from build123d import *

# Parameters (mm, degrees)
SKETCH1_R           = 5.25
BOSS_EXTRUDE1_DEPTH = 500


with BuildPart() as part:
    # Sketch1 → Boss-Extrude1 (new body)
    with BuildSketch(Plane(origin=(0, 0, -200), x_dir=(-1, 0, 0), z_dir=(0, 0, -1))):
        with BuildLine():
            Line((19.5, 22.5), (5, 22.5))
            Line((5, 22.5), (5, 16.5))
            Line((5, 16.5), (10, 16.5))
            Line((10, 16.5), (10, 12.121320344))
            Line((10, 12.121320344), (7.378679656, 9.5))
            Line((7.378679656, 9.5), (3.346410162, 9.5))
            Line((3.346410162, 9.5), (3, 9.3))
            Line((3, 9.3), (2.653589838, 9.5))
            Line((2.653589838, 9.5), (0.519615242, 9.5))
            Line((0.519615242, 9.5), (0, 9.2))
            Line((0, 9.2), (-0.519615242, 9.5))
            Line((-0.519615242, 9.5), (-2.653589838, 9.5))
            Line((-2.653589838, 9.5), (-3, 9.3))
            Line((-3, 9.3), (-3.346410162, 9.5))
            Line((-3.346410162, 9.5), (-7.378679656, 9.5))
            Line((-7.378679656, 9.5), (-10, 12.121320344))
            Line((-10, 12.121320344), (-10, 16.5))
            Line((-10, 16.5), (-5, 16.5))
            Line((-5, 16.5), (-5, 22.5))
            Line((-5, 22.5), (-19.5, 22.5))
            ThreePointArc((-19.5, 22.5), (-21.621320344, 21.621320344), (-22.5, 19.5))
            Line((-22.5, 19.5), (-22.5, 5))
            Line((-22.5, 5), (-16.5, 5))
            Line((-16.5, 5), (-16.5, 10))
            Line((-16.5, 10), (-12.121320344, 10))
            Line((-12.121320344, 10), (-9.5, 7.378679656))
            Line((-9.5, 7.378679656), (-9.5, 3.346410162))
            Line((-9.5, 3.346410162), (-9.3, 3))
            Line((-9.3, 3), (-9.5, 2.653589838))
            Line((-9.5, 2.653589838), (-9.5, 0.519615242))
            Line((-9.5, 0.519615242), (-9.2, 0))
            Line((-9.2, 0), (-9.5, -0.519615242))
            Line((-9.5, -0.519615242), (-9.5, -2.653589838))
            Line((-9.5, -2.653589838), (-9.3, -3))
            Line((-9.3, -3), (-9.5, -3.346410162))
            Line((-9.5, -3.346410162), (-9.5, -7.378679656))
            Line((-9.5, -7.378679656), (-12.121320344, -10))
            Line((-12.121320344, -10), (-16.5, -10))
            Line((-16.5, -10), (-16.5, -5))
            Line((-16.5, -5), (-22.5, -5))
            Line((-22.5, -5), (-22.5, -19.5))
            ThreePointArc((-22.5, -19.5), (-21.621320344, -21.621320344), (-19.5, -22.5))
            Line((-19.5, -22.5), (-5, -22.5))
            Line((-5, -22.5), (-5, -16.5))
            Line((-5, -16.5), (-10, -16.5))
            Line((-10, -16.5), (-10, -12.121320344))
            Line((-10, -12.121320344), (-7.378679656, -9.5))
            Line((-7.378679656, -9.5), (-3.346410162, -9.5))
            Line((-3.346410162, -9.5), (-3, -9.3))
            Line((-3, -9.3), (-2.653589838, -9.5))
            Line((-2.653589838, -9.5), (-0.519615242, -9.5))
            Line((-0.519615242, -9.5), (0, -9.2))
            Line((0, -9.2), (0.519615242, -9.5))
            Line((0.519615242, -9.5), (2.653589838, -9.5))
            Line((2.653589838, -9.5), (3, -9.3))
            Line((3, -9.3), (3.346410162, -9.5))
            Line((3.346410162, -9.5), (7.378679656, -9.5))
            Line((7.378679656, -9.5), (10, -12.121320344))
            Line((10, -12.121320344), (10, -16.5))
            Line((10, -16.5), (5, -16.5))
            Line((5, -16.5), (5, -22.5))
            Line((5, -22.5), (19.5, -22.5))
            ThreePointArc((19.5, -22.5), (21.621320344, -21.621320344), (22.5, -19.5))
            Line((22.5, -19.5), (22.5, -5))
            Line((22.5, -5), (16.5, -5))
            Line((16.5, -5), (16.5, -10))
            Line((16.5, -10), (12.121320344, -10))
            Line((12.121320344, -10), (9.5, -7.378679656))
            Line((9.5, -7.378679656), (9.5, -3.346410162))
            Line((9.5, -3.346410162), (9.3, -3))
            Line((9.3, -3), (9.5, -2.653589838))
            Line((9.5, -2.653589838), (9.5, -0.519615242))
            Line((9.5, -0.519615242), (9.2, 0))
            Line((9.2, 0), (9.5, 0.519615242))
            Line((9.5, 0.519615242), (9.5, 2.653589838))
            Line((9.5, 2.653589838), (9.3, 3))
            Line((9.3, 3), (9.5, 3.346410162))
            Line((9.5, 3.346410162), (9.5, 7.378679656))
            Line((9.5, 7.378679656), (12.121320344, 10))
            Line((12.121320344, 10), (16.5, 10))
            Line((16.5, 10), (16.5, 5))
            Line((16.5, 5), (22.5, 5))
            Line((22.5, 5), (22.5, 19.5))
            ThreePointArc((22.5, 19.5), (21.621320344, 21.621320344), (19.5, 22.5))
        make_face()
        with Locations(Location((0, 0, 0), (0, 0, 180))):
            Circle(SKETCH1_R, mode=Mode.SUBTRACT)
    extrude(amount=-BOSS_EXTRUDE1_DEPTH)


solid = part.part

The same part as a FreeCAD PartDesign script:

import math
import FreeCAD as App
import Part
import Sketcher

V = App.Vector
Q = App.Units.Quantity

doc = App.newDocument("Part")
params = doc.addObject("Spreadsheet::Sheet", "Params")
for row, (alias, value) in enumerate([
    ("sketch1_radius", "3 mm"),
    ("sketch1_diameter", "10.5 mm"),
    ("sketch1_width", "5 mm"),
    ("sketch1_width2", "6 mm"),
    ("sketch1_width3", "14.5 mm"),
    ("pad1_length", "500 mm"),
], start=1):
    params.set(f"A{row}", alias)
    params.set(f"B{row}", "=" + value)
    params.setAlias(f"B{row}", alias)

body = doc.addObject("PartDesign::Body", "Body")

sketch1 = body.newObject("Sketcher::SketchObject", "Sketch")
sketch1.AttachmentSupport = (doc.getObject("XY_Plane"), [""])
sketch1.MapMode = "FlatFace"
sketch1.AttachmentOffset = App.Placement(V(0, 0, -200), App.Rotation())
sketch1.addGeometry(Part.LineSegment(V(-19.5, 22.5, 0), V(-5, 22.5, 0)), False)
sketch1.addGeometry(Part.LineSegment(V(-5, 22.5, 0), V(-5, 16.5, 0)), False)
sketch1.addGeometry(Part.LineSegment(V(-5, 16.5, 0), V(-10, 16.5, 0)), False)
sketch1.addGeometry(Part.LineSegment(V(-10, 16.5, 0), V(-10, 12.12, 0)), False)
sketch1.addGeometry(Part.LineSegment(V(-10, 12.12, 0), V(-7.38, 9.5, 0)), False)
sketch1.addGeometry(Part.LineSegment(V(-7.38, 9.5, 0), V(-3.35, 9.5, 0)), False)
sketch1.addGeometry(Part.LineSegment(V(-3.35, 9.5, 0), V(-3, 9.3, 0)), False)
sketch1.addGeometry(Part.LineSegment(V(-3, 9.3, 0), V(-2.65, 9.5, 0)), False)
sketch1.addGeometry(Part.LineSegment(V(-2.65, 9.5, 0), V(-0.52, 9.5, 0)), False)
sketch1.addGeometry(Part.LineSegment(V(-0.52, 9.5, 0), V(0, 9.2, 0)), False)
sketch1.addGeometry(Part.LineSegment(V(0, 9.2, 0), V(0.52, 9.5, 0)), False)
sketch1.addGeometry(Part.LineSegment(V(0.52, 9.5, 0), V(2.65, 9.5, 0)), False)
sketch1.addGeometry(Part.LineSegment(V(2.65, 9.5, 0), V(3, 9.3, 0)), False)
sketch1.addGeometry(Part.LineSegment(V(3, 9.3, 0), V(3.35, 9.5, 0)), False)
sketch1.addGeometry(Part.LineSegment(V(3.35, 9.5, 0), V(7.38, 9.5, 0)), False)
sketch1.addGeometry(Part.LineSegment(V(7.38, 9.5, 0), V(10, 12.12, 0)), False)
sketch1.addGeometry(Part.LineSegment(V(10, 12.12, 0), V(10, 16.5, 0)), False)
sketch1.addGeometry(Part.LineSegment(V(10, 16.5, 0), V(5, 16.5, 0)), False)
sketch1.addGeometry(Part.LineSegment(V(5, 16.5, 0), V(5, 22.5, 0)), False)
sketch1.addGeometry(Part.LineSegment(V(5, 22.5, 0), V(19.5, 22.5, 0)), False)
sketch1.addGeometry(Part.ArcOfCircle(Part.Circle(V(19.5, 19.5, 0), V(0, 0, 1), 3), math.radians(0), math.radians(90)), False)
sketch1.addGeometry(Part.LineSegment(V(22.5, 19.5, 0), V(22.5, 5, 0)), False)
sketch1.addGeometry(Part.LineSegment(V(22.5, 5, 0), V(16.5, 5, 0)), False)
sketch1.addGeometry(Part.LineSegment(V(16.5, 5, 0), V(16.5, 10, 0)), False)
sketch1.addGeometry(Part.LineSegment(V(16.5, 10, 0), V(12.12, 10, 0)), False)
sketch1.addGeometry(Part.LineSegment(V(12.12, 10, 0), V(9.5, 7.38, 0)), False)
sketch1.addGeometry(Part.LineSegment(V(9.5, 7.38, 0), V(9.5, 3.35, 0)), False)
sketch1.addGeometry(Part.LineSegment(V(9.5, 3.35, 0), V(9.3, 3, 0)), False)
sketch1.addGeometry(Part.LineSegment(V(9.3, 3, 0), V(9.5, 2.65, 0)), False)
sketch1.addGeometry(Part.LineSegment(V(9.5, 2.65, 0), V(9.5, 0.52, 0)), False)
sketch1.addGeometry(Part.LineSegment(V(9.5, 0.52, 0), V(9.2, 0, 0)), False)
sketch1.addGeometry(Part.LineSegment(V(9.2, 0, 0), V(9.5, -0.52, 0)), False)
sketch1.addGeometry(Part.LineSegment(V(9.5, -0.52, 0), V(9.5, -2.65, 0)), False)
sketch1.addGeometry(Part.LineSegment(V(9.5, -2.65, 0), V(9.3, -3, 0)), False)
sketch1.addGeometry(Part.LineSegment(V(9.3, -3, 0), V(9.5, -3.35, 0)), False)
sketch1.addGeometry(Part.LineSegment(V(9.5, -3.35, 0), V(9.5, -7.38, 0)), False)
sketch1.addGeometry(Part.LineSegment(V(9.5, -7.38, 0), V(12.12, -10, 0)), False)
sketch1.addGeometry(Part.LineSegment(V(12.12, -10, 0), V(16.5, -10, 0)), False)
sketch1.addGeometry(Part.LineSegment(V(16.5, -10, 0), V(16.5, -5, 0)), False)
sketch1.addGeometry(Part.LineSegment(V(16.5, -5, 0), V(22.5, -5, 0)), False)
sketch1.addGeometry(Part.LineSegment(V(22.5, -5, 0), V(22.5, -19.5, 0)), False)
sketch1.addGeometry(Part.ArcOfCircle(Part.Circle(V(19.5, -19.5, 0), V(0, 0, 1), 3), math.radians(-90), math.radians(0)), False)
sketch1.addGeometry(Part.LineSegment(V(19.5, -22.5, 0), V(5, -22.5, 0)), False)
sketch1.addGeometry(Part.LineSegment(V(5, -22.5, 0), V(5, -16.5, 0)), False)
sketch1.addGeometry(Part.LineSegment(V(5, -16.5, 0), V(10, -16.5, 0)), False)
sketch1.addGeometry(Part.LineSegment(V(10, -16.5, 0), V(10, -12.12, 0)), False)
sketch1.addGeometry(Part.LineSegment(V(10, -12.12, 0), V(7.38, -9.5, 0)), False)
sketch1.addGeometry(Part.LineSegment(V(7.38, -9.5, 0), V(3.35, -9.5, 0)), False)
sketch1.addGeometry(Part.LineSegment(V(3.35, -9.5, 0), V(3, -9.3, 0)), False)
sketch1.addGeometry(Part.LineSegment(V(3, -9.3, 0), V(2.65, -9.5, 0)), False)
sketch1.addGeometry(Part.LineSegment(V(2.65, -9.5, 0), V(0.52, -9.5, 0)), False)
sketch1.addGeometry(Part.LineSegment(V(0.52, -9.5, 0), V(0, -9.2, 0)), False)
sketch1.addGeometry(Part.LineSegment(V(0, -9.2, 0), V(-0.52, -9.5, 0)), False)
sketch1.addGeometry(Part.LineSegment(V(-0.52, -9.5, 0), V(-2.65, -9.5, 0)), False)
sketch1.addGeometry(Part.LineSegment(V(-2.65, -9.5, 0), V(-3, -9.3, 0)), False)
sketch1.addGeometry(Part.LineSegment(V(-3, -9.3, 0), V(-3.35, -9.5, 0)), False)
sketch1.addGeometry(Part.LineSegment(V(-3.35, -9.5, 0), V(-7.38, -9.5, 0)), False)
sketch1.addGeometry(Part.LineSegment(V(-7.38, -9.5, 0), V(-10, -12.12, 0)), False)
sketch1.addGeometry(Part.LineSegment(V(-10, -12.12, 0), V(-10, -16.5, 0)), False)
sketch1.addGeometry(Part.LineSegment(V(-10, -16.5, 0), V(-5, -16.5, 0)), False)
sketch1.addGeometry(Part.LineSegment(V(-5, -16.5, 0), V(-5, -22.5, 0)), False)
sketch1.addGeometry(Part.LineSegment(V(-5, -22.5, 0), V(-19.5, -22.5, 0)), False)
sketch1.addGeometry(Part.ArcOfCircle(Part.Circle(V(-19.5, -19.5, 0), V(0, 0, 1), 3), math.radians(180), math.radians(270)), False)
sketch1.addGeometry(Part.LineSegment(V(-22.5, -19.5, 0), V(-22.5, -5, 0)), False)
sketch1.addGeometry(Part.LineSegment(V(-22.5, -5, 0), V(-16.5, -5, 0)), False)
sketch1.addGeometry(Part.LineSegment(V(-16.5, -5, 0), V(-16.5, -10, 0)), False)
sketch1.addGeometry(Part.LineSegment(V(-16.5, -10, 0), V(-12.12, -10, 0)), False)
sketch1.addGeometry(Part.LineSegment(V(-12.12, -10, 0), V(-9.5, -7.38, 0)), False)
sketch1.addGeometry(Part.LineSegment(V(-9.5, -7.38, 0), V(-9.5, -3.35, 0)), False)
sketch1.addGeometry(Part.LineSegment(V(-9.5, -3.35, 0), V(-9.3, -3, 0)), False)
sketch1.addGeometry(Part.LineSegment(V(-9.3, -3, 0), V(-9.5, -2.65, 0)), False)
sketch1.addGeometry(Part.LineSegment(V(-9.5, -2.65, 0), V(-9.5, -0.52, 0)), False)
sketch1.addGeometry(Part.LineSegment(V(-9.5, -0.52, 0), V(-9.2, 0, 0)), False)
sketch1.addGeometry(Part.LineSegment(V(-9.2, 0, 0), V(-9.5, 0.52, 0)), False)
sketch1.addGeometry(Part.LineSegment(V(-9.5, 0.52, 0), V(-9.5, 2.65, 0)), False)
sketch1.addGeometry(Part.LineSegment(V(-9.5, 2.65, 0), V(-9.3, 3, 0)), False)
sketch1.addGeometry(Part.LineSegment(V(-9.3, 3, 0), V(-9.5, 3.35, 0)), False)
sketch1.addGeometry(Part.LineSegment(V(-9.5, 3.35, 0), V(-9.5, 7.38, 0)), False)
sketch1.addGeometry(Part.LineSegment(V(-9.5, 7.38, 0), V(-12.12, 10, 0)), False)
sketch1.addGeometry(Part.LineSegment(V(-12.12, 10, 0), V(-16.5, 10, 0)), False)
sketch1.addGeometry(Part.LineSegment(V(-16.5, 10, 0), V(-16.5, 5, 0)), False)
sketch1.addGeometry(Part.LineSegment(V(-16.5, 5, 0), V(-22.5, 5, 0)), False)
sketch1.addGeometry(Part.LineSegment(V(-22.5, 5, 0), V(-22.5, 19.5, 0)), False)
sketch1.addGeometry(Part.ArcOfCircle(Part.Circle(V(-19.5, 19.5, 0), V(0, 0, 1), 3), math.radians(90), math.radians(180)), False)
sketch1.addGeometry(Part.Circle(V(0, 0, 0), V(0, 0, 1), 5.25), False)
sketch1.addConstraint(Sketcher.Constraint("Coincident", 0, 2, 1, 1))
sketch1.addConstraint(Sketcher.Constraint("Coincident", 1, 2, 2, 1))
sketch1.addConstraint(Sketcher.Constraint("Coincident", 2, 2, 3, 1))
sketch1.addConstraint(Sketcher.Constraint("Coincident", 3, 2, 4, 1))
sketch1.addConstraint(Sketcher.Constraint("Coincident", 4, 2, 5, 1))
sketch1.addConstraint(Sketcher.Constraint("Coincident", 5, 2, 6, 1))
sketch1.addConstraint(Sketcher.Constraint("Coincident", 6, 2, 7, 1))
sketch1.addConstraint(Sketcher.Constraint("Coincident", 7, 2, 8, 1))
sketch1.addConstraint(Sketcher.Constraint("Coincident", 8, 2, 9, 1))
sketch1.addConstraint(Sketcher.Constraint("Coincident", 9, 2, 10, 1))
sketch1.addConstraint(Sketcher.Constraint("Coincident", 10, 2, 11, 1))
sketch1.addConstraint(Sketcher.Constraint("Coincident", 11, 2, 12, 1))
sketch1.addConstraint(Sketcher.Constraint("Coincident", 12, 2, 13, 1))
sketch1.addConstraint(Sketcher.Constraint("Coincident", 13, 2, 14, 1))
sketch1.addConstraint(Sketcher.Constraint("Coincident", 14, 2, 15, 1))
sketch1.addConstraint(Sketcher.Constraint("Coincident", 15, 2, 16, 1))
sketch1.addConstraint(Sketcher.Constraint("Coincident", 16, 2, 17, 1))
sketch1.addConstraint(Sketcher.Constraint("Coincident", 17, 2, 18, 1))
sketch1.addConstraint(Sketcher.Constraint("Coincident", 18, 2, 19, 1))
sketch1.addConstraint(Sketcher.Constraint("Tangent", 19, 2, 20, 2))
sketch1.addConstraint(Sketcher.Constraint("Tangent", 20, 1, 21, 1))
sketch1.addConstraint(Sketcher.Constraint("Coincident", 21, 2, 22, 1))
sketch1.addConstraint(Sketcher.Constraint("Coincident", 22, 2, 23, 1))
sketch1.addConstraint(Sketcher.Constraint("Coincident", 23, 2, 24, 1))
sketch1.addConstraint(Sketcher.Constraint("Coincident", 24, 2, 25, 1))
sketch1.addConstraint(Sketcher.Constraint("Coincident", 25, 2, 26, 1))
sketch1.addConstraint(Sketcher.Constraint("Coincident", 26, 2, 27, 1))
sketch1.addConstraint(Sketcher.Constraint("Coincident", 27, 2, 28, 1))
sketch1.addConstraint(Sketcher.Constraint("Coincident", 28, 2, 29, 1))
sketch1.addConstraint(Sketcher.Constraint("Coincident", 29, 2, 30, 1))
sketch1.addConstraint(Sketcher.Constraint("Coincident", 30, 2, 31, 1))
sketch1.addConstraint(Sketcher.Constraint("Coincident", 31, 2, 32, 1))
sketch1.addConstraint(Sketcher.Constraint("Coincident", 32, 2, 33, 1))
sketch1.addConstraint(Sketcher.Constraint("Coincident", 33, 2, 34, 1))
sketch1.addConstraint(Sketcher.Constraint("Coincident", 34, 2, 35, 1))
sketch1.addConstraint(Sketcher.Constraint("Coincident", 35, 2, 36, 1))
sketch1.addConstraint(Sketcher.Constraint("Coincident", 36, 2, 37, 1))
sketch1.addConstraint(Sketcher.Constraint("Coincident", 37, 2, 38, 1))
sketch1.addConstraint(Sketcher.Constraint("Coincident", 38, 2, 39, 1))
sketch1.addConstraint(Sketcher.Constraint("Coincident", 39, 2, 40, 1))
sketch1.addConstraint(Sketcher.Constraint("Tangent", 40, 2, 41, 2))
sketch1.addConstraint(Sketcher.Constraint("Tangent", 41, 1, 42, 1))
sketch1.addConstraint(Sketcher.Constraint("Coincident", 42, 2, 43, 1))
sketch1.addConstraint(Sketcher.Constraint("Coincident", 43, 2, 44, 1))
sketch1.addConstraint(Sketcher.Constraint("Coincident", 44, 2, 45, 1))
sketch1.addConstraint(Sketcher.Constraint("Coincident", 45, 2, 46, 1))
sketch1.addConstraint(Sketcher.Constraint("Coincident", 46, 2, 47, 1))
sketch1.addConstraint(Sketcher.Constraint("Coincident", 47, 2, 48, 1))
sketch1.addConstraint(Sketcher.Constraint("Coincident", 48, 2, 49, 1))
sketch1.addConstraint(Sketcher.Constraint("Coincident", 49, 2, 50, 1))
sketch1.addConstraint(Sketcher.Constraint("Coincident", 50, 2, 51, 1))
sketch1.addConstraint(Sketcher.Constraint("Coincident", 51, 2, 52, 1))
sketch1.addConstraint(Sketcher.Constraint("Coincident", 52, 2, 53, 1))
sketch1.addConstraint(Sketcher.Constraint("Coincident", 53, 2, 54, 1))
sketch1.addConstraint(Sketcher.Constraint("Coincident", 54, 2, 55, 1))
sketch1.addConstraint(Sketcher.Constraint("Coincident", 55, 2, 56, 1))
sketch1.addConstraint(Sketcher.Constraint("Coincident", 56, 2, 57, 1))
sketch1.addConstraint(Sketcher.Constraint("Coincident", 57, 2, 58, 1))
sketch1.addConstraint(Sketcher.Constraint("Coincident", 58, 2, 59, 1))
sketch1.addConstraint(Sketcher.Constraint("Coincident", 59, 2, 60, 1))
sketch1.addConstraint(Sketcher.Constraint("Coincident", 60, 2, 61, 1))
sketch1.addConstraint(Sketcher.Constraint("Tangent", 61, 2, 62, 2))
sketch1.addConstraint(Sketcher.Constraint("Tangent", 62, 1, 63, 1))
sketch1.addConstraint(Sketcher.Constraint("Coincident", 63, 2, 64, 1))
sketch1.addConstraint(Sketcher.Constraint("Coincident", 64, 2, 65, 1))
sketch1.addConstraint(Sketcher.Constraint("Coincident", 65, 2, 66, 1))
sketch1.addConstraint(Sketcher.Constraint("Coincident", 66, 2, 67, 1))
sketch1.addConstraint(Sketcher.Constraint("Coincident", 67, 2, 68, 1))
sketch1.addConstraint(Sketcher.Constraint("Coincident", 68, 2, 69, 1))
sketch1.addConstraint(Sketcher.Constraint("Coincident", 69, 2, 70, 1))
sketch1.addConstraint(Sketcher.Constraint("Coincident", 70, 2, 71, 1))
sketch1.addConstraint(Sketcher.Constraint("Coincident", 71, 2, 72, 1))
sketch1.addConstraint(Sketcher.Constraint("Coincident", 72, 2, 73, 1))
sketch1.addConstraint(Sketcher.Constraint("Coincident", 73, 2, 74, 1))
sketch1.addConstraint(Sketcher.Constraint("Coincident", 74, 2, 75, 1))
sketch1.addConstraint(Sketcher.Constraint("Coincident", 75, 2, 76, 1))
sketch1.addConstraint(Sketcher.Constraint("Coincident", 76, 2, 77, 1))
sketch1.addConstraint(Sketcher.Constraint("Coincident", 77, 2, 78, 1))
sketch1.addConstraint(Sketcher.Constraint("Coincident", 78, 2, 79, 1))
sketch1.addConstraint(Sketcher.Constraint("Coincident", 79, 2, 80, 1))
sketch1.addConstraint(Sketcher.Constraint("Coincident", 80, 2, 81, 1))
sketch1.addConstraint(Sketcher.Constraint("Coincident", 81, 2, 82, 1))
sketch1.addConstraint(Sketcher.Constraint("Tangent", 82, 2, 83, 2))
sketch1.addConstraint(Sketcher.Constraint("Tangent", 83, 1, 0, 1))
sketch1.addConstraint(Sketcher.Constraint("Horizontal", 0))
sketch1.addConstraint(Sketcher.Constraint("Vertical", 1))
sketch1.addConstraint(Sketcher.Constraint("Horizontal", 2))
sketch1.addConstraint(Sketcher.Constraint("Vertical", 3))
sketch1.addConstraint(Sketcher.Constraint("Horizontal", 5))
sketch1.addConstraint(Sketcher.Constraint("Horizontal", 8))
sketch1.addConstraint(Sketcher.Constraint("Horizontal", 11))
sketch1.addConstraint(Sketcher.Constraint("Horizontal", 14))
sketch1.addConstraint(Sketcher.Constraint("Vertical", 16))
sketch1.addConstraint(Sketcher.Constraint("Horizontal", 17))
sketch1.addConstraint(Sketcher.Constraint("Vertical", 18))
sketch1.addConstraint(Sketcher.Constraint("Horizontal", 19))
sketch1.addConstraint(Sketcher.Constraint("Vertical", 21))
sketch1.addConstraint(Sketcher.Constraint("Horizontal", 22))
sketch1.addConstraint(Sketcher.Constraint("Vertical", 23))
sketch1.addConstraint(Sketcher.Constraint("Horizontal", 24))
sketch1.addConstraint(Sketcher.Constraint("Vertical", 26))
sketch1.addConstraint(Sketcher.Constraint("Vertical", 29))
sketch1.addConstraint(Sketcher.Constraint("Vertical", 32))
sketch1.addConstraint(Sketcher.Constraint("Vertical", 35))
sketch1.addConstraint(Sketcher.Constraint("Horizontal", 37))
sketch1.addConstraint(Sketcher.Constraint("Vertical", 38))
sketch1.addConstraint(Sketcher.Constraint("Horizontal", 39))
sketch1.addConstraint(Sketcher.Constraint("Vertical", 40))
sketch1.addConstraint(Sketcher.Constraint("Horizontal", 42))
sketch1.addConstraint(Sketcher.Constraint("Vertical", 43))
sketch1.addConstraint(Sketcher.Constraint("Horizontal", 44))
sketch1.addConstraint(Sketcher.Constraint("Vertical", 45))
sketch1.addConstraint(Sketcher.Constraint("Horizontal", 47))
sketch1.addConstraint(Sketcher.Constraint("Horizontal", 50))
sketch1.addConstraint(Sketcher.Constraint("Horizontal", 53))
sketch1.addConstraint(Sketcher.Constraint("Horizontal", 56))
sketch1.addConstraint(Sketcher.Constraint("Vertical", 58))
sketch1.addConstraint(Sketcher.Constraint("Horizontal", 59))
sketch1.addConstraint(Sketcher.Constraint("Vertical", 60))
sketch1.addConstraint(Sketcher.Constraint("Horizontal", 61))
sketch1.addConstraint(Sketcher.Constraint("Vertical", 63))
sketch1.addConstraint(Sketcher.Constraint("Horizontal", 64))
sketch1.addConstraint(Sketcher.Constraint("Vertical", 65))
sketch1.addConstraint(Sketcher.Constraint("Horizontal", 66))
sketch1.addConstraint(Sketcher.Constraint("Vertical", 68))
sketch1.addConstraint(Sketcher.Constraint("Vertical", 71))
sketch1.addConstraint(Sketcher.Constraint("Vertical", 74))
sketch1.addConstraint(Sketcher.Constraint("Vertical", 77))
sketch1.addConstraint(Sketcher.Constraint("Horizontal", 79))
sketch1.addConstraint(Sketcher.Constraint("Vertical", 80))
sketch1.addConstraint(Sketcher.Constraint("Horizontal", 81))
sketch1.addConstraint(Sketcher.Constraint("Vertical", 82))
sketch1.addConstraint(Sketcher.Constraint("Coincident", 84, 3, -1, 1))
sketch1.addConstraint(Sketcher.Constraint("Equal", 20, 41))
sketch1.addConstraint(Sketcher.Constraint("Equal", 41, 62))
sketch1.addConstraint(Sketcher.Constraint("Equal", 62, 83))
sketch1.addConstraint(Sketcher.Constraint("Symmetric", 20, 3, 62, 3, -1, 1))
sketch1.addConstraint(Sketcher.Constraint("Symmetric", 41, 3, 83, 3, -1, 1))
sketch1.addConstraint(Sketcher.Constraint("Symmetric", 1, 2, 43, 2, -1, 1))
sketch1.addConstraint(Sketcher.Constraint("Symmetric", 3, 2, 45, 2, -1, 1))
sketch1.addConstraint(Sketcher.Constraint("Symmetric", 4, 2, 46, 2, -1, 1))
sketch1.addConstraint(Sketcher.Constraint("Symmetric", 6, 2, 48, 2, -1, 1))
sketch1.addConstraint(Sketcher.Constraint("Symmetric", 7, 2, 49, 2, -1, 1))
sketch1.addConstraint(Sketcher.Constraint("Symmetric", 9, 2, 51, 2, -1, 1))
sketch1.addConstraint(Sketcher.Constraint("Symmetric", 10, 2, 52, 2, -1, 1))
sketch1.addConstraint(Sketcher.Constraint("Symmetric", 12, 2, 54, 2, -1, 1))
sketch1.addConstraint(Sketcher.Constraint("Symmetric", 13, 2, 55, 2, -1, 1))
sketch1.addConstraint(Sketcher.Constraint("Symmetric", 15, 2, 57, 2, -1, 1))
sketch1.addConstraint(Sketcher.Constraint("Symmetric", 17, 2, 59, 2, -1, 1))
sketch1.addConstraint(Sketcher.Constraint("Symmetric", 22, 2, 64, 2, -1, 1))
sketch1.addConstraint(Sketcher.Constraint("Symmetric", 24, 2, 66, 2, -1, 1))
sketch1.addConstraint(Sketcher.Constraint("Symmetric", 25, 2, 67, 2, -1, 1))
sketch1.addConstraint(Sketcher.Constraint("Symmetric", 27, 2, 69, 2, -1, 1))
sketch1.addConstraint(Sketcher.Constraint("Symmetric", 28, 2, 70, 2, -1, 1))
sketch1.addConstraint(Sketcher.Constraint("Symmetric", 30, 2, 72, 2, -1, 1))
sketch1.addConstraint(Sketcher.Constraint("Symmetric", 31, 2, 73, 2, -1, 1))
sketch1.addConstraint(Sketcher.Constraint("Symmetric", 33, 2, 75, 2, -1, 1))
sketch1.addConstraint(Sketcher.Constraint("Symmetric", 34, 2, 76, 2, -1, 1))
sketch1.addConstraint(Sketcher.Constraint("Symmetric", 36, 2, 78, 2, -1, 1))
sketch1.addConstraint(Sketcher.Constraint("Symmetric", 38, 2, 80, 2, -1, 1))
sketch1.addConstraint(Sketcher.Constraint("Symmetric", 41, 3, 62, 3, -2))
sketch1.addConstraint(Sketcher.Constraint("Symmetric", 8, 2, 10, 2, -2))
sketch1.addConstraint(Sketcher.Constraint("Symmetric", 6, 2, 12, 2, -2))
sketch1.addConstraint(Sketcher.Constraint("Symmetric", 5, 2, 13, 2, -2))
sketch1.addConstraint(Sketcher.Constraint("Symmetric", 3, 2, 15, 2, -2))
sketch1.addConstraint(Sketcher.Constraint("Symmetric", 1, 2, 17, 2, -2))
sketch1.addConstraint(Sketcher.Constraint("Symmetric", 38, 2, 64, 2, -2))
sketch1.addConstraint(Sketcher.Constraint("Symmetric", 36, 2, 66, 2, -2))
sketch1.addConstraint(Sketcher.Constraint("Symmetric", 35, 2, 67, 2, -2))
sketch1.addConstraint(Sketcher.Constraint("Symmetric", 33, 2, 69, 2, -2))
sketch1.addConstraint(Sketcher.Constraint("Symmetric", 32, 2, 70, 2, -2))
sketch1.addConstraint(Sketcher.Constraint("PointOnObject", 9, 2, -2))
sketch1.addConstraint(Sketcher.Constraint("PointOnObject", 30, 2, -1))
sketch1.addConstraint(Sketcher.Constraint("Parallel", 6, 9))
sketch1.addConstraint(Sketcher.Constraint("Parallel", 7, 10))
sketch1.addConstraint(Sketcher.Constraint("Parallel", 9, 12))
sketch1.addConstraint(Sketcher.Constraint("Perpendicular", 4, 15))
sketch1.addConstraint(Sketcher.Constraint("Parallel", 15, 25))
sketch1.addConstraint(Sketcher.Constraint("Perpendicular", 12, 27))
sketch1.addConstraint(Sketcher.Constraint("Perpendicular", 13, 28))
sketch1.addConstraint(Sketcher.Constraint("Parallel", 27, 30))
sketch1.addConstraint(Sketcher.Constraint("Parallel", 28, 31))
sketch1.addConstraint(Sketcher.Constraint("Parallel", 31, 34))
sketch1.addConstraint(Sketcher.Constraint("Perpendicular", 25, 36))
sketch1.addConstraint(Sketcher.Constraint("Perpendicular", 33, 48))
sketch1.addConstraint(Sketcher.Constraint("Parallel", 48, 51))
sketch1.addConstraint(Sketcher.Constraint("Parallel", 51, 54))
sketch1.addConstraint(Sketcher.Constraint("Perpendicular", 46, 57))
sketch1.addConstraint(Sketcher.Constraint("Perpendicular", 54, 69))
sketch1.addConstraint(Sketcher.Constraint("Parallel", 69, 72))
sketch1.addConstraint(Sketcher.Constraint("Parallel", 72, 75))
sketch1.addConstraint(Sketcher.Constraint("Perpendicular", 67, 78))
sketch1.addConstraint(Sketcher.Constraint("Horizontal", 5, 2, 7, 2))
sketch1.addConstraint(Sketcher.Constraint("Vertical", 26, 2, 28, 2))
sketch1.addConstraint(Sketcher.Constraint("Equal", 81, 1))
sketch1.addConstraint(Sketcher.Constraint("Equal", 79, 3))
sketch1.addConstraint(Sketcher.Constraint("Equal", 61, 21))
sketch1.addConstraint(Sketcher.Constraint("Equal", 59, 23))
sketch1.addConstraint(Sketcher.Constraint("Equal", 56, 26))
sketch1.addConstraint(Sketcher.Constraint("Equal", 53, 29))
sketch1.addConstraint(Sketcher.Constraint("Equal", 15, 25))
sketch1.addConstraint(Sketcher.Constraint("Equal", 13, 27))
sketch1.addConstraint(Sketcher.Constraint("Equal", 10, 30))
sketch1.addConstraint(Sketcher.Constraint("Radius", 20, 3.0))
sketch1.addConstraint(Sketcher.Constraint("Diameter", 84, 10.5))
sketch1.addConstraint(Sketcher.Constraint("DistanceX", 2, 2, 2, 1, 5.0))
sketch1.addConstraint(Sketcher.Constraint("DistanceX", 22, 2, 22, 1, 6.0))
sketch1.addConstraint(Sketcher.Constraint("Angle", 6, Q("-30 deg")))
sketch1.addConstraint(Sketcher.Constraint("DistanceX", 0, 1, 0, 2, 14.5))
sketch1.addConstraint(Sketcher.Constraint("DistanceX", 0, 2, -1, 1, 5.0))
sketch1.addConstraint(Sketcher.Constraint("DistanceX", 6, 2, -1, 1, 3.0))
sketch1.addConstraint(Sketcher.Constraint("Distance", 6, 0.4))
sketch1.addConstraint(Sketcher.Constraint("Distance", 9, 0.6))
sketch1.addConstraint(Sketcher.Constraint("DistanceY", -1, 1, 4, 2, 9.5))
sketch1.addConstraint(Sketcher.Constraint("DistanceX", 5, 1, 5, 2, 4.032269))
sketch1.setExpression("Constraints[203]", "Params.sketch1_radius")
sketch1.setExpression("Constraints[204]", "Params.sketch1_diameter")
sketch1.setExpression("Constraints[205]", "Params.sketch1_width")
sketch1.setExpression("Constraints[206]", "Params.sketch1_width2")
sketch1.setExpression("Constraints[208]", "Params.sketch1_width3")
pad1 = body.newObject("PartDesign::Pad", "Pad")
pad1.Profile = sketch1
pad1.setExpression("Length", "Params.pad1_length")

doc.recompute()
